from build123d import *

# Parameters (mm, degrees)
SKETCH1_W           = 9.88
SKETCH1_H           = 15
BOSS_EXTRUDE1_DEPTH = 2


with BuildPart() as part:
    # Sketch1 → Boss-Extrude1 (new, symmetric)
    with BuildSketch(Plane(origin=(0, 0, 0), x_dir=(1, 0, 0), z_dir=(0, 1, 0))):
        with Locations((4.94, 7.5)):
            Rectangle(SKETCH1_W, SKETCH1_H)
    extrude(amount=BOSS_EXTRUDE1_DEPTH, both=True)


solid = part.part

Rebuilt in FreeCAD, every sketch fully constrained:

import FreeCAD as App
import Part
import Sketcher
from FreeCAD import Vector

doc = App.newDocument("Part")
params = doc.addObject("Spreadsheet::Sheet", "Params")
for row, (alias, value) in enumerate([
    ("sketch1_height", "15 mm"),
    ("sketch1_width", "9.88 mm"),
    ("pad1_length", "4 mm"),
], start=1):
    params.set(f"A{row}", alias)
    params.set(f"B{row}", "=" + value)
    params.setAlias(f"B{row}", alias)

body = doc.addObject("PartDesign::Body", "Body")

sketch1 = body.newObject("Sketcher::SketchObject", "Sketch")
sketch1.AttachmentSupport = (doc.getObject("XZ_Plane"), [""])
sketch1.MapMode = "FlatFace"
sketch1.addGeometry([
    Part.LineSegment(Vector(0, -15, 0), Vector(0, 0, 0)),
    Part.LineSegment(Vector(0, 0, 0), Vector(10, 0, 0)),
    Part.LineSegment(Vector(10, 0, 0), Vector(10, -15, 0)),
    Part.LineSegment(Vector(10, -15, 0), Vector(0, -15, 0)),
], False)
sketch1.addConstraint([
    Sketcher.Constraint("Coincident", 0, 2, 1, 1),
    Sketcher.Constraint("Coincident", 1, 2, 2, 1),
    Sketcher.Constraint("Coincident", 2, 2, 3, 1),
    Sketcher.Constraint("Coincident", 3, 2, 0, 1),
    Sketcher.Constraint("Vertical", 0),
    Sketcher.Constraint("Horizontal", 1),
    Sketcher.Constraint("Vertical", 2),
    Sketcher.Constraint("Horizontal", 3),
    Sketcher.Constraint("Coincident", 0, 2, -1, 1),
    Sketcher.Constraint("DistanceY", 0, 1, 0, 2, 15.0),
    Sketcher.Constraint("DistanceX", 1, 1, 1, 2, 9.88),
])
sketch1.setExpression("Constraints[9]", "Params.sketch1_height")
sketch1.setExpression("Constraints[10]", "Params.sketch1_width")
pad1 = body.newObject("PartDesign::Pad", "Pad")
pad1.Profile = sketch1
pad1.setExpression("Length", "Params.pad1_length")
pad1.Midplane = True

doc.recompute()
